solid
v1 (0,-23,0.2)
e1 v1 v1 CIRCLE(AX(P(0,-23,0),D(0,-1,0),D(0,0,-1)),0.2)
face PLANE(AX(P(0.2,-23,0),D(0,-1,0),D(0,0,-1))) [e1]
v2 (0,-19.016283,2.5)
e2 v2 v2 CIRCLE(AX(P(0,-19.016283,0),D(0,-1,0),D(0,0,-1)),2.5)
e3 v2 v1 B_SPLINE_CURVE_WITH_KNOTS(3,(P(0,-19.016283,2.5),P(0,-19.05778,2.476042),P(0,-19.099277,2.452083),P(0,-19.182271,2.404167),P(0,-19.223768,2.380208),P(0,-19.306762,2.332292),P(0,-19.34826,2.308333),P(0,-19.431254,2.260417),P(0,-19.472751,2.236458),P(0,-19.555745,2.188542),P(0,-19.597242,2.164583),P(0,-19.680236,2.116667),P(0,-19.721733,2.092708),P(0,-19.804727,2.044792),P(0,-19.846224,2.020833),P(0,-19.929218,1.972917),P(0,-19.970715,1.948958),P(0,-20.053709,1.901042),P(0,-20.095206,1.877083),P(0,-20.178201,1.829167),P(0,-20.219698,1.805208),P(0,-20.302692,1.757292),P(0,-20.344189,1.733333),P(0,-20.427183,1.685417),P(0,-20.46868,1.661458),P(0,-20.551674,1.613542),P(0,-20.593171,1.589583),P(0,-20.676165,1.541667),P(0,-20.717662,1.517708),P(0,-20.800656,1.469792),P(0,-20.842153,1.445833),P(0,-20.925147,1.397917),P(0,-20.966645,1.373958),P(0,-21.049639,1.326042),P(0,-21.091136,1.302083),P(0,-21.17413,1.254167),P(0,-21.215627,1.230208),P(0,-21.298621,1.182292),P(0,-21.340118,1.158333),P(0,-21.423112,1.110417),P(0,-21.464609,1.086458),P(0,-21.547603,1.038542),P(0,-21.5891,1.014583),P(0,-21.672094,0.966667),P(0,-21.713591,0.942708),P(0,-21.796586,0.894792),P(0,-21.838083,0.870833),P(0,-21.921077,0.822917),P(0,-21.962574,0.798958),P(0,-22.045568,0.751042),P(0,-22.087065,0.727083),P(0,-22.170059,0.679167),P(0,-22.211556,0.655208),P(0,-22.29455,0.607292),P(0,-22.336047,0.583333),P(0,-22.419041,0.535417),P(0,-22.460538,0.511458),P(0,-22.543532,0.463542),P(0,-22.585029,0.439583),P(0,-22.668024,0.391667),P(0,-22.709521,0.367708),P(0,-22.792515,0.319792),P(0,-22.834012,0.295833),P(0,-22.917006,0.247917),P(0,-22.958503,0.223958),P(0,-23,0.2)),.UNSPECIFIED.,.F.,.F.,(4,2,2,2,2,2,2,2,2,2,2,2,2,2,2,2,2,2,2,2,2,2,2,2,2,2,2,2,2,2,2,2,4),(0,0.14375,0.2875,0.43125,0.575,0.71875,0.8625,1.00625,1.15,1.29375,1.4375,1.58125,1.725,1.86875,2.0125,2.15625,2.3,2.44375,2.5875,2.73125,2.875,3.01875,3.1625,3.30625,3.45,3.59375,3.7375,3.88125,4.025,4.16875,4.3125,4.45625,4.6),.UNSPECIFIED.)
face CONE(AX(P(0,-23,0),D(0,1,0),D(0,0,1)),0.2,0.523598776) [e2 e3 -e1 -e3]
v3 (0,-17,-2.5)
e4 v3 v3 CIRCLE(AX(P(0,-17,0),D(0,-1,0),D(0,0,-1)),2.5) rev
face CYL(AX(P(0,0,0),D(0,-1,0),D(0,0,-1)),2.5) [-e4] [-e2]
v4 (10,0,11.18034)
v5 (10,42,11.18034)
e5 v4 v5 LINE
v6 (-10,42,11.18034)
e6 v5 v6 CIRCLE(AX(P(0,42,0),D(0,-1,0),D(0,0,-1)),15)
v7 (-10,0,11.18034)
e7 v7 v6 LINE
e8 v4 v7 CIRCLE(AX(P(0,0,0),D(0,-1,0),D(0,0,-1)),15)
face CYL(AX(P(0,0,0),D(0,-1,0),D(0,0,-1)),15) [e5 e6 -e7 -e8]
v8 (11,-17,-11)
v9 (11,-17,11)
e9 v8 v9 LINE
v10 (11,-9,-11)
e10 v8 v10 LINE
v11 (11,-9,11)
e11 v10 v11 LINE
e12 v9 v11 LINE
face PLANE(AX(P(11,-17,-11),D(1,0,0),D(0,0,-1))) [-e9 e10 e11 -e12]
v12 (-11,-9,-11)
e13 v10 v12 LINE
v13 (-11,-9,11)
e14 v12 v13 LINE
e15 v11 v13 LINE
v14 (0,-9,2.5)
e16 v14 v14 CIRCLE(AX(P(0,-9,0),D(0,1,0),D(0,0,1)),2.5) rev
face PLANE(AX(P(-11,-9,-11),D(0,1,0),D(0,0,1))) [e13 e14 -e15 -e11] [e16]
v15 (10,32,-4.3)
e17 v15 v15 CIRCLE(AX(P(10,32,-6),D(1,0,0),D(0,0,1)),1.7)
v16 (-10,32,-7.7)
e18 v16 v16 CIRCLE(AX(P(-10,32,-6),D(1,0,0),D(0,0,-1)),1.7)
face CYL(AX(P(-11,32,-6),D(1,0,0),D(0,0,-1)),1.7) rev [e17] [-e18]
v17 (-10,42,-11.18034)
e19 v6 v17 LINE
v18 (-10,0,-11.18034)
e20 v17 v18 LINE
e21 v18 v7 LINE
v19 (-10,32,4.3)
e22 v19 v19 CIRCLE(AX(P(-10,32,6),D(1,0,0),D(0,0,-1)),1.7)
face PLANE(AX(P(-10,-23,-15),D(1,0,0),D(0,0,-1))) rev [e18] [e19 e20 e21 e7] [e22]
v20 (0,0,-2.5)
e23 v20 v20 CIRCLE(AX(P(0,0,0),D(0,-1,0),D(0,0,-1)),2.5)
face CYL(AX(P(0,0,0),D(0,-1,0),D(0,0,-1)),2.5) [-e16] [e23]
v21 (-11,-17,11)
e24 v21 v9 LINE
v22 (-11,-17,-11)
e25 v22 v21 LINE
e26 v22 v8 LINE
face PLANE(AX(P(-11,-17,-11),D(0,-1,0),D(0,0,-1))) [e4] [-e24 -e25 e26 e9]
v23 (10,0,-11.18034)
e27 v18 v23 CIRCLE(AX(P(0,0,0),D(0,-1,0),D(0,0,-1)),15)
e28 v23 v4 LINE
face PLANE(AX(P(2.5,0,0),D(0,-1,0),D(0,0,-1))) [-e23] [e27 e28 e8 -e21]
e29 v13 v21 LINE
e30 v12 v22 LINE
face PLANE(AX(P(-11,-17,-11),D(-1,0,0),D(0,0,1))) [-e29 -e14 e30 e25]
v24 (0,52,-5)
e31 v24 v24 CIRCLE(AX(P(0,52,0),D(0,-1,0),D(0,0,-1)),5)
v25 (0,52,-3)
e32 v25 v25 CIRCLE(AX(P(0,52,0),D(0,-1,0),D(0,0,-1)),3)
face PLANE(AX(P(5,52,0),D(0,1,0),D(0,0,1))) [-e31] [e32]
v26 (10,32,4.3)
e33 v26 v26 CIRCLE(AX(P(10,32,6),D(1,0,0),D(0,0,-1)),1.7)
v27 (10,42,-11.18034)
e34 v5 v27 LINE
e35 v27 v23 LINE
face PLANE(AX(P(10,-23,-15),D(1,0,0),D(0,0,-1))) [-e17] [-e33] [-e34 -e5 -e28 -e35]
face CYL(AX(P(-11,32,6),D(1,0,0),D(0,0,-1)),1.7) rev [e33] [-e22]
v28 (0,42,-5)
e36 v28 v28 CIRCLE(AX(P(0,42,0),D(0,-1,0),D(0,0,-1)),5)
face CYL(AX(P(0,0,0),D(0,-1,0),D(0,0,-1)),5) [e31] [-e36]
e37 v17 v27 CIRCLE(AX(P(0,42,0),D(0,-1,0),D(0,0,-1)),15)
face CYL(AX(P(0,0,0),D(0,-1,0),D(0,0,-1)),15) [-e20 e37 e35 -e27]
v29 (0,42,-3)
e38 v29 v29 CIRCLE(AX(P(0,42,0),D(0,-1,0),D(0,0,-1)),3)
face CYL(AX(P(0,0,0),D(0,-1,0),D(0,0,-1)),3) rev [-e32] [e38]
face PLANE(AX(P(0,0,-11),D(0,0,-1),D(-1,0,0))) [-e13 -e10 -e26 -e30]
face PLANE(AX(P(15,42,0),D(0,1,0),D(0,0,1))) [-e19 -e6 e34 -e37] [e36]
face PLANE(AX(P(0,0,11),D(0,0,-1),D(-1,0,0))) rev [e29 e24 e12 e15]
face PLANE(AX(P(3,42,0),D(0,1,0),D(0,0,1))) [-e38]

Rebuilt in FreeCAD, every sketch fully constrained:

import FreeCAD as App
import Part
import Sketcher
from FreeCAD import Vector
Q = App.Units.Quantity

doc = App.newDocument("Part")
params = doc.addObject("Spreadsheet::Sheet", "Params")
for row, (alias, value) in enumerate([
    ("sketch1_width", "10 mm"),
    ("sketch1_width2", "2 mm"),
    ("sketch1_width3", "3 mm"),
    ("sketch1_height", "42 mm"),
    ("sketch1_height2", "65 mm"),
    ("revolution_angle", "360 deg"),
    ("sketch2_width", "20 mm"),
    ("sketch2_height", "75 mm"),
    ("sketch3_width", "22 mm"),
    ("sketch3_height", "8 mm"),
    ("pad1_length", "11 mm"),
    ("pad1_length2", "11 mm"),
    ("sketch4_diameter", "3.4 mm"),
], start=1):
    params.set(f"A{row}", alias)
    params.set(f"B{row}", "=" + value)
    params.setAlias(f"B{row}", alias)

body = doc.addObject("PartDesign::Body", "Body")

sketch1 = body.newObject("Sketcher::SketchObject", "Sketch")
sketch1.AttachmentSupport = (doc.getObject("XY_Plane"), [""])
sketch1.MapMode = "FlatFace"
sketch1.addGeometry(Part.LineSegment(Vector(2.5, 0, 0), Vector(15, 0, 0)), False)
sketch1.addGeometry(Part.LineSegment(Vector(15, 0, 0), Vector(15, 42, 0)), False)
sketch1.addGeometry(Part.LineSegment(Vector(15, 42, 0), Vector(5, 42, 0)), False)
sketch1.addGeometry(Part.LineSegment(Vector(5, 42, 0), Vector(5, 52, 0)), False)
sketch1.addGeometry(Part.LineSegment(Vector(5, 52, 0), Vector(3, 52, 0)), False)
sketch1.addGeometry(Part.LineSegment(Vector(3, 52, 0), Vector(3, 42, 0)), False)
sketch1.addGeometry(Part.LineSegment(Vector(3, 42, 0), Vector(0, 42, 0)), False)
sketch1.addGeometry(Part.LineSegment(Vector(0, 42, 0), Vector(0, -23, 0)), False)
sketch1.addGeometry(Part.LineSegment(Vector(0, -23, 0), Vector(0.2, -23, 0)), False)
sketch1.addGeometry(Part.LineSegment(Vector(0.2, -23, 0), Vector(2.5, -19.02, 0)), False)
sketch1.addGeometry(Part.LineSegment(Vector(2.5, -19.02, 0), Vector(2.5, 0, 0)), False)
sketch1.addConstraint(Sketcher.Constraint("Coincident", 0, 2, 1, 1))
sketch1.addConstraint(Sketcher.Constraint("Coincident", 1, 2, 2, 1))
sketch1.addConstraint(Sketcher.Constraint("Coincident", 2, 2, 3, 1))
sketch1.addConstraint(Sketcher.Constraint("Coincident", 3, 2, 4, 1))
sketch1.addConstraint(Sketcher.Constraint("Coincident", 4, 2, 5, 1))
sketch1.addConstraint(Sketcher.Constraint("Coincident", 5, 2, 6, 1))
sketch1.addConstraint(Sketcher.Constraint("Coincident", 6, 2, 7, 1))
sketch1.addConstraint(Sketcher.Constraint("Coincident", 7, 2, 8, 1))
sketch1.addConstraint(Sketcher.Constraint("Coincident", 8, 2, 9, 1))
sketch1.addConstraint(Sketcher.Constraint("Coincident", 9, 2, 10, 1))
sketch1.addConstraint(Sketcher.Constraint("Coincident", 10, 2, 0, 1))
sketch1.addConstraint(Sketcher.Constraint("Horizontal", 0))
sketch1.addConstraint(Sketcher.Constraint("Vertical", 1))
sketch1.addConstraint(Sketcher.Constraint("Horizontal", 2))
sketch1.addConstraint(Sketcher.Constraint("Vertical", 3))
sketch1.addConstraint(Sketcher.Constraint("Horizontal", 4))
sketch1.addConstraint(Sketcher.Constraint("Vertical", 5))
sketch1.addConstraint(Sketcher.Constraint("Horizontal", 6))
sketch1.addConstraint(Sketcher.Constraint("Vertical", 7))
sketch1.addConstraint(Sketcher.Constraint("Horizontal", 8))
sketch1.addConstraint(Sketcher.Constraint("Vertical", 10))
sketch1.addConstraint(Sketcher.Constraint("PointOnObject", 0, 2, -1))
sketch1.addConstraint(Sketcher.Constraint("PointOnObject", 6, 2, -2))
sketch1.addConstraint(Sketcher.Constraint("Horizontal", 2, 2, 5, 2))
sketch1.addConstraint(Sketcher.Constraint("Equal", 2, 3))
sketch1.addConstraint(Sketcher.Constraint("DistanceX", 2, 2, 2, 1, Q("10 mm")))
sketch1.addConstraint(Sketcher.Constraint("DistanceX", 4, 2, 4, 1, Q("2 mm")))
sketch1.addConstraint(Sketcher.Constraint("DistanceX", 6, 2, 6, 1, Q("3 mm")))
sketch1.addConstraint(Sketcher.Constraint("DistanceY", 1, 1, 1, 2, Q("42 mm")))
sketch1.addConstraint(Sketcher.Constraint("DistanceY", 7, 2, 7, 1, Q("65 mm")))
sketch1.addConstraint(Sketcher.Constraint("Angle", 9, Q("60 deg")))
sketch1.addConstraint(Sketcher.Constraint("DistanceX", 0, 1, 0, 2, Q("12.5 mm")))
sketch1.addConstraint(Sketcher.Constraint("DistanceX", 8, 1, 8, 2, Q("0.2 mm")))
sketch1.setExpression("Constraints[25]", "Params.sketch1_width")
sketch1.setExpression("Constraints[26]", "Params.sketch1_width2")
sketch1.setExpression("Constraints[27]", "Params.sketch1_width3")
sketch1.setExpression("Constraints[28]", "Params.sketch1_height")
sketch1.setExpression("Constraints[29]", "Params.sketch1_height2")
revolution = body.newObject("PartDesign::Revolution", "Revolution")
revolution.Profile = sketch1
revolution.ReferenceAxis = (sketch1, ["V_Axis"])
revolution.setExpression("Angle", "Params.revolution_angle")

sketch2 = body.newObject("Sketcher::SketchObject", "Sketch001")
sketch2.AttachmentSupport = (doc.getObject("XY_Plane"), [""])
sketch2.MapMode = "FlatFace"
sketch2.addGeometry(Part.LineSegment(Vector(-25, 62, 0), Vector(-25, -33, 0)), False)
sketch2.addGeometry(Part.LineSegment(Vector(-25, -33, 0), Vector(25, -33, 0)), False)
sketch2.addGeometry(Part.LineSegment(Vector(25, -33, 0), Vector(25, 62, 0)), False)
sketch2.addGeometry(Part.LineSegment(Vector(25, 62, 0), Vector(-25, 62, 0)), False)
sketch2.addGeometry(Part.LineSegment(Vector(10, -23, 0), Vector(-10, -23, 0)), False)
sketch2.addGeometry(Part.LineSegment(Vector(-10, -23, 0), Vector(-10, 52, 0)), False)
sketch2.addGeometry(Part.LineSegment(Vector(-10, 52, 0), Vector(10, 52, 0)), False)
sketch2.addGeometry(Part.LineSegment(Vector(10, 52, 0), Vector(10, -23, 0)), False)
sketch2.addConstraint(Sketcher.Constraint("Coincident", 0, 2, 1, 1))
sketch2.addConstraint(Sketcher.Constraint("Coincident", 1, 2, 2, 1))
sketch2.addConstraint(Sketcher.Constraint("Coincident", 2, 2, 3, 1))
sketch2.addConstraint(Sketcher.Constraint("Coincident", 3, 2, 0, 1))
sketch2.addConstraint(Sketcher.Constraint("Coincident", 4, 2, 5, 1))
sketch2.addConstraint(Sketcher.Constraint("Coincident", 5, 2, 6, 1))
sketch2.addConstraint(Sketcher.Constraint("Coincident", 6, 2, 7, 1))
sketch2.addConstraint(Sketcher.Constraint("Coincident", 7, 2, 4, 1))
sketch2.addConstraint(Sketcher.Constraint("Vertical", 0))
sketch2.addConstraint(Sketcher.Constraint("Horizontal", 1))
sketch2.addConstraint(Sketcher.Constraint("Vertical", 2))
sketch2.addConstraint(Sketcher.Constraint("Horizontal", 3))
sketch2.addConstraint(Sketcher.Constraint("Horizontal", 4))
sketch2.addConstraint(Sketcher.Constraint("Vertical", 5))
sketch2.addConstraint(Sketcher.Constraint("Horizontal", 6))
sketch2.addConstraint(Sketcher.Constraint("Vertical", 7))
sketch2.addConstraint(Sketcher.Constraint("DistanceX", 4, 2, 4, 1, Q("20 mm")))
sketch2.addConstraint(Sketcher.Constraint("DistanceY", 5, 1, 5, 2, Q("75 mm")))
sketch2.addConstraint(Sketcher.Constraint("DistanceX", 4, 2, -1, 1, Q("10 mm")))
sketch2.addConstraint(Sketcher.Constraint("DistanceY", 4, 2, -1, 1, Q("23 mm")))
sketch2.addConstraint(Sketcher.Constraint("DistanceX", 1, 1, 1, 2, Q("49.234 mm")))
sketch2.addConstraint(Sketcher.Constraint("DistanceY", 0, 2, 0, 1, Q("94.234 mm")))
sketch2.addConstraint(Sketcher.Constraint("DistanceX", 0, 2, -1, 1, Q("24.617 mm")))
sketch2.addConstraint(Sketcher.Constraint("DistanceY", 0, 2, -1, 1, Q("32.617 mm")))
sketch2.setExpression("Constraints[16]", "Params.sketch2_width")
sketch2.setExpression("Constraints[17]", "Params.sketch2_height")
pocket1 = body.newObject("PartDesign::Pocket", "Pocket")
pocket1.Profile = sketch2
pocket1.Type = "ThroughAll"
pocket1.Midplane = True

sketch3 = body.newObject("Sketcher::SketchObject", "Sketch002")
sketch3.AttachmentSupport = (doc.getObject("XY_Plane"), [""])
sketch3.MapMode = "FlatFace"
sketch3.addGeometry(Part.LineSegment(Vector(-11, -9, 0), Vector(-11, -17, 0)), False)
sketch3.addGeometry(Part.LineSegment(Vector(-11, -17, 0), Vector(11, -17, 0)), False)
sketch3.addGeometry(Part.LineSegment(Vector(11, -17, 0), Vector(11, -9, 0)), False)
sketch3.addGeometry(Part.LineSegment(Vector(11, -9, 0), Vector(-11, -9, 0)), False)
sketch3.addConstraint(Sketcher.Constraint("Coincident", 0, 2, 1, 1))
sketch3.addConstraint(Sketcher.Constraint("Coincident", 1, 2, 2, 1))
sketch3.addConstraint(Sketcher.Constraint("Coincident", 2, 2, 3, 1))
sketch3.addConstraint(Sketcher.Constraint("Coincident", 3, 2, 0, 1))
sketch3.addConstraint(Sketcher.Constraint("Vertical", 0))
sketch3.addConstraint(Sketcher.Constraint("Horizontal", 1))
sketch3.addConstraint(Sketcher.Constraint("Vertical", 2))
sketch3.addConstraint(Sketcher.Constraint("Horizontal", 3))
sketch3.addConstraint(Sketcher.Constraint("DistanceX", 1, 1, 1, 2, Q("22 mm")))
sketch3.addConstraint(Sketcher.Constraint("DistanceY", 0, 2, 0, 1, Q("8 mm")))
sketch3.addConstraint(Sketcher.Constraint("DistanceX", 0, 2, -1, 1, Q("11 mm")))
sketch3.addConstraint(Sketcher.Constraint("DistanceY", 0, 2, -1, 1, Q("17 mm")))
sketch3.setExpression("Constraints[8]", "Params.sketch3_width")
sketch3.setExpression("Constraints[9]", "Params.sketch3_height")
pad1 = body.newObject("PartDesign::Pad", "Pad")
pad1.Profile = sketch3
pad1.Type = "TwoLengths"
pad1.setExpression("Length", "Params.pad1_length")
pad1.setExpression("Length2", "Params.pad1_length2")

sketch4 = body.newObject("Sketcher::SketchObject", "Sketch003")
sketch4.AttachmentSupport = (doc.getObject("YZ_Plane"), [""])
sketch4.MapMode = "FlatFace"
sketch4.AttachmentOffset = App.Placement(Vector(0, 0, 10), App.Rotation())
sketch4.addGeometry(Part.Circle(Vector(32, 6, 0), Vector(0, 0, 1), 1.7), False)
sketch4.addGeometry(Part.Circle(Vector(32, -6, 0), Vector(0, 0, 1), 1.7), False)
sketch4.addConstraint(Sketcher.Constraint("Equal", 0, 1))
sketch4.addConstraint(Sketcher.Constraint("Symmetric", 0, 3, 1, 3, -1))
sketch4.addConstraint(Sketcher.Constraint("Diameter", 0, Q("3.4 mm")))
sketch4.addConstraint(Sketcher.Constraint("DistanceX", -1, 1, 0, 3, Q("32 mm")))
sketch4.addConstraint(Sketcher.Constraint("DistanceY", -1, 1, 0, 3, Q("6 mm")))
sketch4.setExpression("Constraints[2]", "Params.sketch4_diameter")
pocket2 = body.newObject("PartDesign::Pocket", "Pocket001")
pocket2.Profile = sketch4
pocket2.Type = "ThroughAll"

doc.recompute()
